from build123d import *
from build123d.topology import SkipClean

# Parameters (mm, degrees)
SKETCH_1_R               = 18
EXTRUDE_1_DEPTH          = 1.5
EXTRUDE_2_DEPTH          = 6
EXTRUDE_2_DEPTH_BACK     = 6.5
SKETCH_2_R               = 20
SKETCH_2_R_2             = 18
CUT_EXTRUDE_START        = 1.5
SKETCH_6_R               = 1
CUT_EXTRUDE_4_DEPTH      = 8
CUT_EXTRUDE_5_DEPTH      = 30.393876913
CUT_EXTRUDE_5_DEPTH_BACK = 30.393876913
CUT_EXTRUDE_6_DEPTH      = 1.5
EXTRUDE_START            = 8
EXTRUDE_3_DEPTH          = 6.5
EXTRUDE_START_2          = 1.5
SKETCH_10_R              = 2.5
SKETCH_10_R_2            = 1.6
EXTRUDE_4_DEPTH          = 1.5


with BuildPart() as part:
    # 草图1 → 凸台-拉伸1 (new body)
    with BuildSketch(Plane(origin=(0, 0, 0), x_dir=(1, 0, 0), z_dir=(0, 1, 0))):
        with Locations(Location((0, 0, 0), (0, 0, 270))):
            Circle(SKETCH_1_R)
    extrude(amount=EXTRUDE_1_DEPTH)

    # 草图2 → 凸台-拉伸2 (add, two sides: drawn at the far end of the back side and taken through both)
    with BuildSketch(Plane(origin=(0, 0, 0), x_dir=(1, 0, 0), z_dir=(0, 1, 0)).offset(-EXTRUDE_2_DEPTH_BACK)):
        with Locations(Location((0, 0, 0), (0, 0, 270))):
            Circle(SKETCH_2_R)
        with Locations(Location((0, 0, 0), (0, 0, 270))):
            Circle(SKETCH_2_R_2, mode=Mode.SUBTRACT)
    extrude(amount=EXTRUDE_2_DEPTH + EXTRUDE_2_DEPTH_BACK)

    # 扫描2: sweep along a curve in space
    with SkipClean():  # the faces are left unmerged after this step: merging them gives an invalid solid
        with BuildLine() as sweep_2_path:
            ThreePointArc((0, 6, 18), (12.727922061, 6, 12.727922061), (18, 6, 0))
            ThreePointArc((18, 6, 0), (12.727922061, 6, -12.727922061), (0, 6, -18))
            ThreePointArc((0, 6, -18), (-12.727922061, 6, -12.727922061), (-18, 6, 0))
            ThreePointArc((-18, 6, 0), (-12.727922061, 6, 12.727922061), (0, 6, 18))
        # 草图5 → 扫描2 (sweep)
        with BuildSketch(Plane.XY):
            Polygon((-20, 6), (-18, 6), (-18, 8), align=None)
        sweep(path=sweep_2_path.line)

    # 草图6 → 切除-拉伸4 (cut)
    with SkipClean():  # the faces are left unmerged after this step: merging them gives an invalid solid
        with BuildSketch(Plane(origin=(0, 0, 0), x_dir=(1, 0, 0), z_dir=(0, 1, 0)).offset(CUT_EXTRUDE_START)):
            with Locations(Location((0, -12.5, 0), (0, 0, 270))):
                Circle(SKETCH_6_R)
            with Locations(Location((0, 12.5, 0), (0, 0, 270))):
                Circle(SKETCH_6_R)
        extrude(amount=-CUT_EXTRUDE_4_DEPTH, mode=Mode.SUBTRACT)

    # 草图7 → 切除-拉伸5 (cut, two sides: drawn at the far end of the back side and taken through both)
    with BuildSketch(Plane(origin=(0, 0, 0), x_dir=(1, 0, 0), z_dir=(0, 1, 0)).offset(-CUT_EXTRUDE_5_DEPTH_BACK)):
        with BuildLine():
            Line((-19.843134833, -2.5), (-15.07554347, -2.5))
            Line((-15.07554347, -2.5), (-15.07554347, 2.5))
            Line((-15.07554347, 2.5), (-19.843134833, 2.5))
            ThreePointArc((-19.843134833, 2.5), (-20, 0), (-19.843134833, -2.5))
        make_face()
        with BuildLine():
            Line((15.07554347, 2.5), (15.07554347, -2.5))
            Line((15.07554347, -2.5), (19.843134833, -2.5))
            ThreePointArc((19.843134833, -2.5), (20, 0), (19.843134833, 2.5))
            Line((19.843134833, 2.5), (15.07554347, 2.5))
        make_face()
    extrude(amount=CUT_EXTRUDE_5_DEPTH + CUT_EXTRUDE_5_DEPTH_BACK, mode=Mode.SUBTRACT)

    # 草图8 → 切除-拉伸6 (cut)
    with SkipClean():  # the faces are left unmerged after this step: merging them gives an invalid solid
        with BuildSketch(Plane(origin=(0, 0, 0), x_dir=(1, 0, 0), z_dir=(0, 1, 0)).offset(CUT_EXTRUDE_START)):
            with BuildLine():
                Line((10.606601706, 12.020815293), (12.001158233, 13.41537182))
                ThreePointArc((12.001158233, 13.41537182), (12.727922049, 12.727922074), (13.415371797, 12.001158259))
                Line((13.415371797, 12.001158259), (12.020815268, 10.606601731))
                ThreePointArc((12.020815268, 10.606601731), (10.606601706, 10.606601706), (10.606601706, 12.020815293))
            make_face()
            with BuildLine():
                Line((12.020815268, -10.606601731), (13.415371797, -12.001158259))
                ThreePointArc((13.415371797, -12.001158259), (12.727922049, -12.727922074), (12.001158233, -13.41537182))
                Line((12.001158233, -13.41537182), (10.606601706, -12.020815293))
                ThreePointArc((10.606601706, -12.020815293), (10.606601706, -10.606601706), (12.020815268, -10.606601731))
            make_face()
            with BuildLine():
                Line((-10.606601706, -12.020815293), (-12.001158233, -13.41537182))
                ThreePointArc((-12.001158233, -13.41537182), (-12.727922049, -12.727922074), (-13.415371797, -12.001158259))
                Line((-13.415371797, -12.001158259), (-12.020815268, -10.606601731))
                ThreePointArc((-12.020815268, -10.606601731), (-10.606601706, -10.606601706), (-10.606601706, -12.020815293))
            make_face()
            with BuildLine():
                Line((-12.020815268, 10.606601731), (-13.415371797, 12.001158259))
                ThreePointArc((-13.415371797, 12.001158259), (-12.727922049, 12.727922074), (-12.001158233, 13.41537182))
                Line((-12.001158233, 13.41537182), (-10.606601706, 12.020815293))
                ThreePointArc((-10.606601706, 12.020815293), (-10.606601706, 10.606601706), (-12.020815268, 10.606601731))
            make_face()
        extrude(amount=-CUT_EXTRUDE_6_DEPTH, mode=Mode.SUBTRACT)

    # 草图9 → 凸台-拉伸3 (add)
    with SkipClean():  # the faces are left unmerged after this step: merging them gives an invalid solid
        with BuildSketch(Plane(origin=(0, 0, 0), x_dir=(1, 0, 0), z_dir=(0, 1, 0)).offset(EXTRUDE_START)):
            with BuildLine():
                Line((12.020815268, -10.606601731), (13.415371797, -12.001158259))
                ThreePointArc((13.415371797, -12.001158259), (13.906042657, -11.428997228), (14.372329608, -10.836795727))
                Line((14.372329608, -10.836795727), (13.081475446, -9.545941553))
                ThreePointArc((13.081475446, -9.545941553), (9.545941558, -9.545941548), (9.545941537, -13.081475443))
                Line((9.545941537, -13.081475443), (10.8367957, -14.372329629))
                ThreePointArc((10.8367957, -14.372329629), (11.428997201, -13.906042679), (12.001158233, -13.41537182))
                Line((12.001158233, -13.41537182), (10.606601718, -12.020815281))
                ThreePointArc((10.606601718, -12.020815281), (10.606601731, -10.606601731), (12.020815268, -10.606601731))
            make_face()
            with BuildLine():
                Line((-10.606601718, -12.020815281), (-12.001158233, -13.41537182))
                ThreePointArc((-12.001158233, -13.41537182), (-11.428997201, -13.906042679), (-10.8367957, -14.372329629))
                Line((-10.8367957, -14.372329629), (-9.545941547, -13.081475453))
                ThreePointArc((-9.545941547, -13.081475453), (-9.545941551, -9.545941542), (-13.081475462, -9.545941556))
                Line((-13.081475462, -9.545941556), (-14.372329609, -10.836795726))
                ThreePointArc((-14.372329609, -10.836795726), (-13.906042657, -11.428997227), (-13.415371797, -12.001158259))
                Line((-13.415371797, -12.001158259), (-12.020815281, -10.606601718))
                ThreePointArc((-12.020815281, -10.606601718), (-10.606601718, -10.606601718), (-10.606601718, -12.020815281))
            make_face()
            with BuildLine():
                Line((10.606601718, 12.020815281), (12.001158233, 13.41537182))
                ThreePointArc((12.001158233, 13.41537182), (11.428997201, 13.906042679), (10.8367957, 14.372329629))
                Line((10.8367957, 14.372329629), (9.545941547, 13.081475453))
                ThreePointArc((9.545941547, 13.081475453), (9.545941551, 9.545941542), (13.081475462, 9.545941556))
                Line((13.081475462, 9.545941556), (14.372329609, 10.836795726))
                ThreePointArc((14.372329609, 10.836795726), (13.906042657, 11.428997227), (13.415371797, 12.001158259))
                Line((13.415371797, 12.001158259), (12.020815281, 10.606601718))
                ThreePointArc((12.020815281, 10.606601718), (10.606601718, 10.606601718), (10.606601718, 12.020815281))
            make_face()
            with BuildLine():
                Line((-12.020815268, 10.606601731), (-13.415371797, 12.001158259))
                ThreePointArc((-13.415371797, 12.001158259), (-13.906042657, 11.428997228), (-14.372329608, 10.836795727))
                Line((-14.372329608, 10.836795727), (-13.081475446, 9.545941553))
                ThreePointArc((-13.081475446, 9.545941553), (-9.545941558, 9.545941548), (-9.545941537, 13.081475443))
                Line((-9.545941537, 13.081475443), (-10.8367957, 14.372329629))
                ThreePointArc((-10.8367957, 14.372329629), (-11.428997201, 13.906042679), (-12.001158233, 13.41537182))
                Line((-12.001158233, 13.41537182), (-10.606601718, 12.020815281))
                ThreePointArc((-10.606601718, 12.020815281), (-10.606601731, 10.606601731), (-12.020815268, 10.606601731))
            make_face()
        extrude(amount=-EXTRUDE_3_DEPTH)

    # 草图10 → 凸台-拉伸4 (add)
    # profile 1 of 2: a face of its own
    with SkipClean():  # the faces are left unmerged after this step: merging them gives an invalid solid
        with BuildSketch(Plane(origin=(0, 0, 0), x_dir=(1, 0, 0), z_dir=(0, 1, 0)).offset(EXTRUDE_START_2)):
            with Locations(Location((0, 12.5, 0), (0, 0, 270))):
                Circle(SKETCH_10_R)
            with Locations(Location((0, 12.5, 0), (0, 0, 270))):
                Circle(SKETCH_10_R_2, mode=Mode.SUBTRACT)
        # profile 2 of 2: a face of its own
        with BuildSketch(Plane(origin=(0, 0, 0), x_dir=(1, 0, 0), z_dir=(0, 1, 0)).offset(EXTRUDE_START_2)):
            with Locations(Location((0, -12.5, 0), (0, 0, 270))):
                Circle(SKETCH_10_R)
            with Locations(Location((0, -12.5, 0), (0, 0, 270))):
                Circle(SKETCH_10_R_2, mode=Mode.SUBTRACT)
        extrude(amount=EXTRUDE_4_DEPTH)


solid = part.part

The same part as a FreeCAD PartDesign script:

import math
import FreeCAD as App
import Part
import Sketcher

V = App.Vector

doc = App.newDocument("Part")
body = doc.addObject("PartDesign::Body", "Body")

# Sketch on XZ plane
sketch1 = doc.addObject("Sketcher::SketchObject", "Sketch")
body.addObject(sketch1)
sketch1.AttachmentSupport = (doc.XZ_Plane, [""])
sketch1.MapMode = "FlatFace"
sketch1.addGeometry(Part.Circle(V(0, 0, 0), V(0, 0, 1), 18), False)
sketch1.addConstraint(Sketcher.Constraint("Coincident", 0, 3, -1, 1))
sketch1.addConstraint(Sketcher.Constraint("Diameter", 0, 36.0))
pad1 = doc.addObject("PartDesign::Pad", "Pad")
body.addObject(pad1)
pad1.Profile = sketch1
pad1.Length = 1.5
pad1.Reversed = True

# Sketch on XZ plane
sketch2 = doc.addObject("Sketcher::SketchObject", "Sketch001")
body.addObject(sketch2)
sketch2.AttachmentSupport = (doc.XZ_Plane, [""])
sketch2.MapMode = "FlatFace"
sketch2.addGeometry(Part.Circle(V(0, 0, 0), V(0, 0, 1), 20), False)
sketch2.addGeometry(Part.Circle(V(0, 0, 0), V(0, 0, 1), 18), False)
sketch2.addConstraint(Sketcher.Constraint("Coincident", 0, 3, -1, 1))
sketch2.addConstraint(Sketcher.Constraint("Coincident", 1, 3, -1, 1))
sketch2.addConstraint(Sketcher.Constraint("Diameter", 0, 40.0))
sketch2.addConstraint(Sketcher.Constraint("Diameter", 1, 36.0))
pad2 = doc.addObject("PartDesign::Pad", "Pad001")
body.addObject(pad2)
pad2.Profile = sketch2
pad2.Type = "TwoLengths"
pad2.Length = 6
pad2.Length2 = 6.5
pad2.Reversed = True

# Sketch on XY plane
sketch3 = doc.addObject("Sketcher::SketchObject", "Sketch002")
body.addObject(sketch3)
sketch3.AttachmentSupport = (doc.XY_Plane, [""])
sketch3.MapMode = "FlatFace"
sketch3.addGeometry(Part.LineSegment(V(-20, 6, 0), V(-18, 6, 0)), False)
sketch3.addGeometry(Part.LineSegment(V(-18, 6, 0), V(-18, 8, 0)), False)
sketch3.addGeometry(Part.LineSegment(V(-18, 8, 0), V(-20, 6, 0)), False)
sketch3.addConstraint(Sketcher.Constraint("Coincident", 0, 2, 1, 1))
sketch3.addConstraint(Sketcher.Constraint("Coincident", 1, 2, 2, 1))
sketch3.addConstraint(Sketcher.Constraint("Coincident", 2, 2, 0, 1))
sketch3.addConstraint(Sketcher.Constraint("Horizontal", 0))
sketch3.addConstraint(Sketcher.Constraint("Vertical", 1))
sketch3.addConstraint(Sketcher.Constraint("Equal", 0, 1))
sketch3.addConstraint(Sketcher.Constraint("DistanceX", 0, 1, 0, 2, 2.0))
sketch3.addConstraint(Sketcher.Constraint("DistanceX", 0, 2, -1, 1, 18.0))
sketch3.addConstraint(Sketcher.Constraint("DistanceY", -1, 1, 0, 2, 6.0))

# Sketch on XZ plane
sketch4 = doc.addObject("Sketcher::SketchObject", "Sketch003")
body.addObject(sketch4)
sketch4.AttachmentSupport = (doc.XZ_Plane, [""])
sketch4.MapMode = "FlatFace"
sketch4.AttachmentOffset = App.Placement(V(0, 0, -6), App.Rotation())
sketch4.addGeometry(Part.ArcOfCircle(Part.Circle(V(0, 0, 0), V(0, 0, 1), 18), math.radians(0), math.radians(90)), False)
sketch4.addGeometry(Part.ArcOfCircle(Part.Circle(V(0, 0, 0), V(0, 0, 1), 18), math.radians(-90), math.radians(0)), False)
sketch4.addGeometry(Part.ArcOfCircle(Part.Circle(V(0, 0, 0), V(0, 0, 1), 18), math.radians(-180), math.radians(-90)), False)
sketch4.addGeometry(Part.ArcOfCircle(Part.Circle(V(0, 0, 0), V(0, 0, 1), 18), math.radians(90), math.radians(180)), False)
sketch4.addConstraint(Sketcher.Constraint("Tangent", 0, 1, 1, 2))
sketch4.addConstraint(Sketcher.Constraint("Tangent", 1, 1, 2, 2))
sketch4.addConstraint(Sketcher.Constraint("Tangent", 2, 1, 3, 2))
sketch4.addConstraint(Sketcher.Constraint("Tangent", 3, 1, 0, 2))
sketch4.addConstraint(Sketcher.Constraint("Coincident", 0, 3, -1, 1))
sketch4.addConstraint(Sketcher.Constraint("Equal", 0, 1))
sketch4.addConstraint(Sketcher.Constraint("PointOnObject", 0, 1, -1))
sketch4.addConstraint(Sketcher.Constraint("PointOnObject", 1, 1, -2))
sketch4.addConstraint(Sketcher.Constraint("PointOnObject", 2, 1, -1))
sketch4.addConstraint(Sketcher.Constraint("PointOnObject", 3, 1, -2))
sketch4.addConstraint(Sketcher.Constraint("Radius", 0, 18.0))
doc.recompute()

additivepipe = doc.addObject("PartDesign::AdditivePipe", "AdditivePipe")
body.addObject(additivepipe)
additivepipe.Profile = sketch3
additivepipe.Spine = (sketch4, ["Edge1", "Edge2", "Edge3", "Edge4"])

# Sketch on XZ plane
sketch5 = doc.addObject("Sketcher::SketchObject", "Sketch004")
body.addObject(sketch5)
sketch5.AttachmentSupport = (doc.XZ_Plane, [""])
sketch5.MapMode = "FlatFace"
sketch5.AttachmentOffset = App.Placement(V(0, 0, -1.5), App.Rotation())
sketch5.addGeometry(Part.Circle(V(0, 12.5, 0), V(0, 0, 1), 1), False)
sketch5.addGeometry(Part.Circle(V(0, -12.5, 0), V(0, 0, 1), 1), False)
sketch5.addConstraint(Sketcher.Constraint("Equal", 0, 1))
sketch5.addConstraint(Sketcher.Constraint("Symmetric", 0, 3, 1, 3, -1, 1))
sketch5.addConstraint(Sketcher.Constraint("PointOnObject", 0, 3, -2))
sketch5.addConstraint(Sketcher.Constraint("Diameter", 0, 2.0))
sketch5.addConstraint(Sketcher.Constraint("DistanceY", 1, 3, 0, 3, 25.0))
pocket1 = doc.addObject("PartDesign::Pocket", "Pocket")
body.addObject(pocket1)
pocket1.Profile = sketch5
pocket1.Length = 8
pocket1.Reversed = True

# Sketch on XZ plane
sketch6 = doc.addObject("Sketcher::SketchObject", "Sketch005")
body.addObject(sketch6)
sketch6.AttachmentSupport = (doc.XZ_Plane, [""])
sketch6.MapMode = "FlatFace"
sketch6.addGeometry(Part.LineSegment(V(-19.843135, 2.5, 0), V(-15.075543, 2.5, 0)), False)
sketch6.addGeometry(Part.LineSegment(V(-15.075543, 2.5, 0), V(-15.075543, -2.5, 0)), False)
sketch6.addGeometry(Part.LineSegment(V(-15.075543, -2.5, 0), V(-19.843135, -2.5, 0)), False)
sketch6.addGeometry(Part.ArcOfCircle(Part.Circle(V(0, 0, 0), V(0, 0, 1), 20), math.radians(172.819244), math.radians(187.180756)), False)
sketch6.addGeometry(Part.LineSegment(V(15.075543, -2.5, 0), V(15.075543, 2.5, 0)), False)
sketch6.addGeometry(Part.LineSegment(V(15.075543, 2.5, 0), V(19.843135, 2.5, 0)), False)
sketch6.addGeometry(Part.ArcOfCircle(Part.Circle(V(0, 0, 0), V(0, 0, 1), 20), math.radians(-7.180756), math.radians(7.180756)), False)
sketch6.addGeometry(Part.LineSegment(V(19.843135, -2.5, 0), V(15.075543, -2.5, 0)), False)
sketch6.addConstraint(Sketcher.Constraint("Coincident", 0, 2, 1, 1))
sketch6.addConstraint(Sketcher.Constraint("Coincident", 1, 2, 2, 1))
sketch6.addConstraint(Sketcher.Constraint("Coincident", 2, 2, 3, 2))
sketch6.addConstraint(Sketcher.Constraint("Coincident", 3, 1, 0, 1))
sketch6.addConstraint(Sketcher.Constraint("Coincident", 4, 2, 5, 1))
sketch6.addConstraint(Sketcher.Constraint("Coincident", 5, 2, 6, 2))
sketch6.addConstraint(Sketcher.Constraint("Coincident", 6, 1, 7, 1))
sketch6.addConstraint(Sketcher.Constraint("Coincident", 7, 2, 4, 1))
sketch6.addConstraint(Sketcher.Constraint("Horizontal", 0))
sketch6.addConstraint(Sketcher.Constraint("Vertical", 1))
sketch6.addConstraint(Sketcher.Constraint("Horizontal", 2))
sketch6.addConstraint(Sketcher.Constraint("Vertical", 4))
sketch6.addConstraint(Sketcher.Constraint("Horizontal", 5))
sketch6.addConstraint(Sketcher.Constraint("Horizontal", 7))
sketch6.addConstraint(Sketcher.Constraint("Coincident", 3, 3, -1, 1))
sketch6.addConstraint(Sketcher.Constraint("Coincident", 6, 3, -1, 1))
sketch6.addConstraint(Sketcher.Constraint("Equal", 3, 6))
sketch6.addConstraint(Sketcher.Constraint("Symmetric", 1, 2, 4, 2, -1, 1))
sketch6.addConstraint(Sketcher.Constraint("Horizontal", 3, 1, 4, 2))
sketch6.addConstraint(Sketcher.Constraint("Horizontal", 2, 2, 6, 1))
sketch6.addConstraint(Sketcher.Constraint("Radius", 3, 20.0))
sketch6.addConstraint(Sketcher.Constraint("DistanceY", 1, 2, 1, 1, 5.0))
sketch6.addConstraint(Sketcher.Constraint("DistanceX", 0, 1, 0, 2, 4.767591))
pocket2 = doc.addObject("PartDesign::Pocket", "Pocket001")
body.addObject(pocket2)
pocket2.Profile = sketch6
pocket2.Type = "ThroughAll"
pocket2.Midplane = True

# Sketch on XZ plane
sketch7 = doc.addObject("Sketcher::SketchObject", "Sketch006")
body.addObject(sketch7)
sketch7.AttachmentSupport = (doc.XZ_Plane, [""])
sketch7.MapMode = "FlatFace"
sketch7.AttachmentOffset = App.Placement(V(0, 0, -1.5), App.Rotation())
sketch7.addGeometry(Part.LineSegment(V(12.001158, -13.415372, 0), V(10.606602, -12.020815, 0)), False)
sketch7.addGeometry(Part.ArcOfCircle(Part.Circle(V(11.313708, -11.313708, 0), V(0, 0, 1), 1), math.radians(44.999999), math.radians(225.000001)), False)
sketch7.addGeometry(Part.LineSegment(V(12.020815, -10.606602, 0), V(13.415372, -12.001158, 0)), False)
sketch7.addGeometry(Part.ArcOfCircle(Part.Circle(V(0, 0, 0), V(0, 0, 1), 18), math.radians(-48.184739), math.radians(-41.815262)), False)
sketch7.addGeometry(Part.LineSegment(V(13.415372, 12.001158, 0), V(12.020815, 10.606602, 0)), False)
sketch7.addGeometry(Part.ArcOfCircle(Part.Circle(V(11.313708, 11.313708, 0), V(0, 0, 1), 1), math.radians(134.999999), math.radians(315.000001)), False)
sketch7.addGeometry(Part.LineSegment(V(10.606602, 12.020815, 0), V(12.001158, 13.415372, 0)), False)
sketch7.addGeometry(Part.ArcOfCircle(Part.Circle(V(0, 0, 0), V(0, 0, 1), 18), math.radians(41.815262), math.radians(48.184739)), False)
sketch7.addGeometry(Part.LineSegment(V(-12.001158, 13.415372, 0), V(-10.606602, 12.020815, 0)), False)
sketch7.addGeometry(Part.ArcOfCircle(Part.Circle(V(-11.313708, 11.313708, 0), V(0, 0, 1), 1), math.radians(-135.000001), math.radians(45.000001)), False)
sketch7.addGeometry(Part.LineSegment(V(-12.020815, 10.606602, 0), V(-13.415372, 12.001158, 0)), False)
sketch7.addGeometry(Part.ArcOfCircle(Part.Circle(V(0, 0, 0), V(0, 0, 1), 18), math.radians(131.815261), math.radians(138.184738)), False)
sketch7.addGeometry(Part.LineSegment(V(-13.415372, -12.001158, 0), V(-12.020815, -10.606602, 0)), False)
sketch7.addGeometry(Part.ArcOfCircle(Part.Circle(V(-11.313708, -11.313708, 0), V(0, 0, 1), 1), math.radians(-45.000001), math.radians(135.000001)), False)
sketch7.addGeometry(Part.LineSegment(V(-10.606602, -12.020815, 0), V(-12.001158, -13.415372, 0)), False)
sketch7.addGeometry(Part.ArcOfCircle(Part.Circle(V(0, 0, 0), V(0, 0, 1), 18), math.radians(-138.184738), math.radians(-131.815261)), False)
sketch7.addConstraint(Sketcher.Constraint("Tangent", 0, 2, 1, 2))
sketch7.addConstraint(Sketcher.Constraint("Tangent", 1, 1, 2, 1))
sketch7.addConstraint(Sketcher.Constraint("Coincident", 2, 2, 3, 2))
sketch7.addConstraint(Sketcher.Constraint("Coincident", 3, 1, 0, 1))
sketch7.addConstraint(Sketcher.Constraint("Tangent", 4, 2, 5, 2))
sketch7.addConstraint(Sketcher.Constraint("Tangent", 5, 1, 6, 1))
sketch7.addConstraint(Sketcher.Constraint("Coincident", 6, 2, 7, 2))
sketch7.addConstraint(Sketcher.Constraint("Coincident", 7, 1, 4, 1))
sketch7.addConstraint(Sketcher.Constraint("Tangent", 8, 2, 9, 2))
sketch7.addConstraint(Sketcher.Constraint("Tangent", 9, 1, 10, 1))
sketch7.addConstraint(Sketcher.Constraint("Coincident", 10, 2, 11, 2))
sketch7.addConstraint(Sketcher.Constraint("Coincident", 11, 1, 8, 1))
sketch7.addConstraint(Sketcher.Constraint("Tangent", 12, 2, 13, 2))
sketch7.addConstraint(Sketcher.Constraint("Tangent", 13, 1, 14, 1))
sketch7.addConstraint(Sketcher.Constraint("Coincident", 14, 2, 15, 2))
sketch7.addConstraint(Sketcher.Constraint("Coincident", 15, 1, 12, 1))
sketch7.addConstraint(Sketcher.Constraint("Coincident", 3, 3, -1, 1))
sketch7.addConstraint(Sketcher.Constraint("Coincident", 7, 3, -1, 1))
sketch7.addConstraint(Sketcher.Constraint("Coincident", 11, 3, -1, 1))
sketch7.addConstraint(Sketcher.Constraint("Coincident", 15, 3, -1, 1))
sketch7.addConstraint(Sketcher.Constraint("Equal", 1, 5))
sketch7.addConstraint(Sketcher.Constraint("Equal", 3, 7))
sketch7.addConstraint(Sketcher.Constraint("Equal", 5, 9))
sketch7.addConstraint(Sketcher.Constraint("Equal", 7, 11))
sketch7.addConstraint(Sketcher.Constraint("Equal", 9, 13))
sketch7.addConstraint(Sketcher.Constraint("Equal", 11, 15))
sketch7.addConstraint(Sketcher.Constraint("Symmetric", 1, 3, 9, 3, -1, 1))
sketch7.addConstraint(Sketcher.Constraint("Symmetric", 5, 3, 13, 3, -1, 1))
sketch7.addConstraint(Sketcher.Constraint("Symmetric", 5, 3, 9, 3, -2))
sketch7.addConstraint(Sketcher.Constraint("Parallel", 0, 2))
sketch7.addConstraint(Sketcher.Constraint("Perpendicular", 2, 4))
sketch7.addConstraint(Sketcher.Constraint("Parallel", 4, 6))
sketch7.addConstraint(Sketcher.Constraint("Perpendicular", 6, 8))
sketch7.addConstraint(Sketcher.Constraint("Parallel", 8, 10))
sketch7.addConstraint(Sketcher.Constraint("Perpendicular", 10, 12))
sketch7.addConstraint(Sketcher.Constraint("Parallel", 12, 14))
sketch7.addConstraint(Sketcher.Constraint("Horizontal", 5, 1, 8, 2))
sketch7.addConstraint(Sketcher.Constraint("Equal", 0, 2))
sketch7.addConstraint(Sketcher.Constraint("Radius", 1, 1.0))
sketch7.addConstraint(Sketcher.Constraint("Radius", 3, 18.0))
sketch7.addConstraint(Sketcher.Constraint("Distance", 0, 1.972201))
pocket3 = doc.addObject("PartDesign::Pocket", "Pocket002")
body.addObject(pocket3)
pocket3.Profile = sketch7
pocket3.Length = 1.5
pocket3.Reversed = True

# Sketch on XZ plane
sketch8 = doc.addObject("Sketcher::SketchObject", "Sketch007")
body.addObject(sketch8)
sketch8.AttachmentSupport = (doc.XZ_Plane, [""])
sketch8.MapMode = "FlatFace"
sketch8.AttachmentOffset = App.Placement(V(0, 0, -8), App.Rotation())
sketch8.addGeometry(Part.LineSegment(V(12.020815, 10.606602, 0), V(13.415372, 12.001158, 0)), False)
sketch8.addGeometry(Part.ArcOfCircle(Part.Circle(V(0, 0, 0), V(0, 0, 1), 17.999999), math.radians(37.016444), math.radians(41.815262)), False)
sketch8.addGeometry(Part.LineSegment(V(14.37233, 10.836796, 0), V(13.081475, 9.545942, 0)), False)
sketch8.addGeometry(Part.ArcOfCircle(Part.Circle(V(11.313709, 11.313709, 0), V(0, 0, 1), 2.5), math.radians(135), math.radians(315)), False)
sketch8.addGeometry(Part.LineSegment(V(9.545942, 13.081475, 0), V(10.836796, 14.37233, 0)), False)
sketch8.addGeometry(Part.ArcOfCircle(Part.Circle(V(0, 0, 0), V(0, 0, 1), 18), math.radians(48.184739), math.radians(52.983556)), False)
sketch8.addGeometry(Part.LineSegment(V(12.001158, 13.415372, 0), V(10.606602, 12.020815, 0)), False)
sketch8.addGeometry(Part.ArcOfCircle(Part.Circle(V(11.313708, 11.313709, 0), V(0, 0, 1), 1), math.radians(135), math.radians(315)), False)
sketch8.addGeometry(Part.LineSegment(V(-10.606602, 12.020815, 0), V(-12.001158, 13.415372, 0)), False)
sketch8.addGeometry(Part.ArcOfCircle(Part.Circle(V(0, 0, 0), V(0, 0, 1), 18), math.radians(127.016444), math.radians(131.815261)), False)
sketch8.addGeometry(Part.LineSegment(V(-10.836796, 14.37233, 0), V(-9.545942, 13.081475, 0)), False)
sketch8.addGeometry(Part.ArcOfCircle(Part.Circle(V(-11.313708, 11.313708, 0), V(0, 0, 1), 2.5), math.radians(-135), math.radians(45)), False)
sketch8.addGeometry(Part.LineSegment(V(-13.081475, 9.545942, 0), V(-14.37233, 10.836796, 0)), False)
sketch8.addGeometry(Part.ArcOfCircle(Part.Circle(V(0, 0, 0), V(0, 0, 1), 18), math.radians(138.184739), math.radians(142.983556)), False)
sketch8.addGeometry(Part.LineSegment(V(-13.415372, 12.001158, 0), V(-12.020815, 10.606602, 0)), False)
sketch8.addGeometry(Part.ArcOfCircle(Part.Circle(V(-11.313709, 11.313709, 0), V(0, 0, 1), 1), math.radians(-135), math.radians(45)), False)
sketch8.addGeometry(Part.LineSegment(V(10.606602, -12.020815, 0), V(12.001158, -13.415372, 0)), False)
sketch8.addGeometry(Part.ArcOfCircle(Part.Circle(V(0, 0, 0), V(0, 0, 1), 18), math.radians(-52.983556), math.radians(-48.184739)), False)
sketch8.addGeometry(Part.LineSegment(V(10.836796, -14.37233, 0), V(9.545942, -13.081475, 0)), False)
sketch8.addGeometry(Part.ArcOfCircle(Part.Circle(V(11.313708, -11.313708, 0), V(0, 0, 1), 2.5), math.radians(45), math.radians(225)), False)
sketch8.addGeometry(Part.LineSegment(V(13.081475, -9.545942, 0), V(14.37233, -10.836796, 0)), False)
sketch8.addGeometry(Part.ArcOfCircle(Part.Circle(V(0, 0, 0), V(0, 0, 1), 18), math.radians(-41.815261), math.radians(-37.016444)), False)
sketch8.addGeometry(Part.LineSegment(V(13.415372, -12.001158, 0), V(12.020815, -10.606602, 0)), False)
sketch8.addGeometry(Part.ArcOfCircle(Part.Circle(V(11.313709, -11.313709, 0), V(0, 0, 1), 1), math.radians(45), math.radians(225)), False)
sketch8.addGeometry(Part.LineSegment(V(-12.020815, -10.606602, 0), V(-13.415372, -12.001158, 0)), False)
sketch8.addGeometry(Part.ArcOfCircle(Part.Circle(V(0, 0, 0), V(0, 0, 1), 17.999999), math.radians(-142.983556), math.radians(-138.184738)), False)
sketch8.addGeometry(Part.LineSegment(V(-14.37233, -10.836796, 0), V(-13.081475, -9.545942, 0)), False)
sketch8.addGeometry(Part.ArcOfCircle(Part.Circle(V(-11.313709, -11.313709, 0), V(0, 0, 1), 2.5), math.radians(-45), math.radians(135)), False)
sketch8.addGeometry(Part.LineSegment(V(-9.545942, -13.081475, 0), V(-10.836796, -14.37233, 0)), False)
sketch8.addGeometry(Part.ArcOfCircle(Part.Circle(V(0, 0, 0), V(0, 0, 1), 18), math.radians(-131.815261), math.radians(-127.016444)), False)
sketch8.addGeometry(Part.LineSegment(V(-12.001158, -13.415372, 0), V(-10.606602, -12.020815, 0)), False)
sketch8.addGeometry(Part.ArcOfCircle(Part.Circle(V(-11.313708, -11.313709, 0), V(0, 0, 1), 1), math.radians(-45), math.radians(135)), False)
sketch8.addConstraint(Sketcher.Constraint("Coincident", 0, 2, 1, 2))
sketch8.addConstraint(Sketcher.Constraint("Coincident", 1, 1, 2, 1))
sketch8.addConstraint(Sketcher.Constraint("Tangent", 2, 2, 3, 2))
sketch8.addConstraint(Sketcher.Constraint("Tangent", 3, 1, 4, 1))
sketch8.addConstraint(Sketcher.Constraint("Coincident", 4, 2, 5, 2))
sketch8.addConstraint(Sketcher.Constraint("Coincident", 5, 1, 6, 1))
sketch8.addConstraint(Sketcher.Constraint("Tangent", 6, 2, 7, 1))
sketch8.addConstraint(Sketcher.Constraint("Tangent", 7, 2, 0, 1))
sketch8.addConstraint(Sketcher.Constraint("Coincident", 8, 2, 9, 2))
sketch8.addConstraint(Sketcher.Constraint("Coincident", 9, 1, 10, 1))
sketch8.addConstraint(Sketcher.Constraint("Tangent", 10, 2, 11, 2))
sketch8.addConstraint(Sketcher.Constraint("Tangent", 11, 1, 12, 1))
sketch8.addConstraint(Sketcher.Constraint("Coincident", 12, 2, 13, 2))
sketch8.addConstraint(Sketcher.Constraint("Coincident", 13, 1, 14, 1))
sketch8.addConstraint(Sketcher.Constraint("Tangent", 14, 2, 15, 1))
sketch8.addConstraint(Sketcher.Constraint("Tangent", 15, 2, 8, 1))
sketch8.addConstraint(Sketcher.Constraint("Coincident", 16, 2, 17, 2))
sketch8.addConstraint(Sketcher.Constraint("Coincident", 17, 1, 18, 1))
sketch8.addConstraint(Sketcher.Constraint("Tangent", 18, 2, 19, 2))
sketch8.addConstraint(Sketcher.Constraint("Tangent", 19, 1, 20, 1))
sketch8.addConstraint(Sketcher.Constraint("Coincident", 20, 2, 21, 2))
sketch8.addConstraint(Sketcher.Constraint("Coincident", 21, 1, 22, 1))
sketch8.addConstraint(Sketcher.Constraint("Tangent", 22, 2, 23, 1))
sketch8.addConstraint(Sketcher.Constraint("Tangent", 23, 2, 16, 1))
sketch8.addConstraint(Sketcher.Constraint("Coincident", 24, 2, 25, 2))
sketch8.addConstraint(Sketcher.Constraint("Coincident", 25, 1, 26, 1))
sketch8.addConstraint(Sketcher.Constraint("Tangent", 26, 2, 27, 2))
sketch8.addConstraint(Sketcher.Constraint("Tangent", 27, 1, 28, 1))
sketch8.addConstraint(Sketcher.Constraint("Coincident", 28, 2, 29, 2))
sketch8.addConstraint(Sketcher.Constraint("Coincident", 29, 1, 30, 1))
sketch8.addConstraint(Sketcher.Constraint("Tangent", 30, 2, 31, 1))
sketch8.addConstraint(Sketcher.Constraint("Tangent", 31, 2, 24, 1))
sketch8.addConstraint(Sketcher.Constraint("Coincident", 1, 3, -1, 1))
sketch8.addConstraint(Sketcher.Constraint("Coincident", 5, 3, -1, 1))
sketch8.addConstraint(Sketcher.Constraint("Coincident", 9, 3, -1, 1))
sketch8.addConstraint(Sketcher.Constraint("Coincident", 13, 3, -1, 1))
sketch8.addConstraint(Sketcher.Constraint("Coincident", 17, 3, -1, 1))
sketch8.addConstraint(Sketcher.Constraint("Coincident", 21, 3, -1, 1))
sketch8.addConstraint(Sketcher.Constraint("Coincident", 25, 3, -1, 1))
sketch8.addConstraint(Sketcher.Constraint("Coincident", 29, 3, -1, 1))
sketch8.addConstraint(Sketcher.Constraint("Coincident", 7, 3, 3, 3))
sketch8.addConstraint(Sketcher.Constraint("Coincident", 15, 3, 11, 3))
sketch8.addConstraint(Sketcher.Constraint("Coincident", 23, 3, 19, 3))
sketch8.addConstraint(Sketcher.Constraint("Coincident", 31, 3, 27, 3))
sketch8.addConstraint(Sketcher.Constraint("Equal", 1, 5))
sketch8.addConstraint(Sketcher.Constraint("Equal", 5, 9))
sketch8.addConstraint(Sketcher.Constraint("Equal", 3, 11))
sketch8.addConstraint(Sketcher.Constraint("Equal", 9, 13))
sketch8.addConstraint(Sketcher.Constraint("Equal", 7, 15))
sketch8.addConstraint(Sketcher.Constraint("Equal", 13, 17))
sketch8.addConstraint(Sketcher.Constraint("Equal", 11, 19))
sketch8.addConstraint(Sketcher.Constraint("Equal", 17, 21))
sketch8.addConstraint(Sketcher.Constraint("Equal", 15, 23))
sketch8.addConstraint(Sketcher.Constraint("Equal", 21, 25))
sketch8.addConstraint(Sketcher.Constraint("Equal", 19, 27))
sketch8.addConstraint(Sketcher.Constraint("Equal", 25, 29))
sketch8.addConstraint(Sketcher.Constraint("Equal", 23, 31))
sketch8.addConstraint(Sketcher.Constraint("Symmetric", 11, 3, 19, 3, -1, 1))
sketch8.addConstraint(Sketcher.Constraint("Symmetric", 3, 3, 27, 3, -1, 1))
sketch8.addConstraint(Sketcher.Constraint("Symmetric", 3, 3, 11, 3, -2))
sketch8.addConstraint(Sketcher.Constraint("Parallel", 0, 2))
sketch8.addConstraint(Sketcher.Constraint("Parallel", 2, 4))
sketch8.addConstraint(Sketcher.Constraint("Parallel", 4, 6))
sketch8.addConstraint(Sketcher.Constraint("Perpendicular", 6, 8))
sketch8.addConstraint(Sketcher.Constraint("Parallel", 8, 10))
sketch8.addConstraint(Sketcher.Constraint("Parallel", 10, 12))
sketch8.addConstraint(Sketcher.Constraint("Parallel", 12, 14))
sketch8.addConstraint(Sketcher.Constraint("Parallel", 14, 16))
sketch8.addConstraint(Sketcher.Constraint("Parallel", 16, 18))
sketch8.addConstraint(Sketcher.Constraint("Parallel", 18, 20))
sketch8.addConstraint(Sketcher.Constraint("Parallel", 20, 22))
sketch8.addConstraint(Sketcher.Constraint("Perpendicular", 22, 24))
sketch8.addConstraint(Sketcher.Constraint("Parallel", 24, 26))
sketch8.addConstraint(Sketcher.Constraint("Parallel", 26, 28))
sketch8.addConstraint(Sketcher.Constraint("Parallel", 28, 30))
sketch8.addConstraint(Sketcher.Constraint("Horizontal", 5, 1, 8, 2))
sketch8.addConstraint(Sketcher.Constraint("Equal", 2, 4))
sketch8.addConstraint(Sketcher.Constraint("Radius", 1, 17.999999))
sketch8.addConstraint(Sketcher.Constraint("Radius", 7, 1.0))
sketch8.addConstraint(Sketcher.Constraint("Radius", 3, 2.5))
sketch8.addConstraint(Sketcher.Constraint("Distance", 0, 1.972201))
pad3 = doc.addObject("PartDesign::Pad", "Pad002")
body.addObject(pad3)
pad3.Profile = sketch8
pad3.Length = 6.5

# Sketch on XZ plane
sketch9 = doc.addObject("Sketcher::SketchObject", "Sketch008")
body.addObject(sketch9)
sketch9.AttachmentSupport = (doc.XZ_Plane, [""])
sketch9.MapMode = "FlatFace"
sketch9.AttachmentOffset = App.Placement(V(0, 0, -1.5), App.Rotation())
sketch9.addGeometry(Part.Circle(V(0, -12.5, 0), V(0, 0, 1), 2.5), False)
sketch9.addGeometry(Part.Circle(V(0, -12.5, 0), V(0, 0, 1), 1.6), False)
sketch9.addGeometry(Part.Circle(V(0, 12.5, 0), V(0, 0, 1), 2.5), False)
sketch9.addGeometry(Part.Circle(V(0, 12.5, 0), V(0, 0, 1), 1.6), False)
sketch9.addConstraint(Sketcher.Constraint("Coincident", 1, 3, 0, 3))
sketch9.addConstraint(Sketcher.Constraint("Coincident", 3, 3, 2, 3))
sketch9.addConstraint(Sketcher.Constraint("Equal", 0, 2))
sketch9.addConstraint(Sketcher.Constraint("Equal", 1, 3))
sketch9.addConstraint(Sketcher.Constraint("Symmetric", 0, 3, 2, 3, -1, 1))
sketch9.addConstraint(Sketcher.Constraint("PointOnObject", 0, 3, -2))
sketch9.addConstraint(Sketcher.Constraint("Diameter", 0, 5.0))
sketch9.addConstraint(Sketcher.Constraint("Diameter", 1, 3.2))
sketch9.addConstraint(Sketcher.Constraint("DistanceY", 0, 3, 2, 3, 25.0))
pad4 = doc.addObject("PartDesign::Pad", "Pad003")
body.addObject(pad4)
pad4.Profile = sketch9
pad4.Length = 1.5
pad4.Reversed = True

doc.recompute()
